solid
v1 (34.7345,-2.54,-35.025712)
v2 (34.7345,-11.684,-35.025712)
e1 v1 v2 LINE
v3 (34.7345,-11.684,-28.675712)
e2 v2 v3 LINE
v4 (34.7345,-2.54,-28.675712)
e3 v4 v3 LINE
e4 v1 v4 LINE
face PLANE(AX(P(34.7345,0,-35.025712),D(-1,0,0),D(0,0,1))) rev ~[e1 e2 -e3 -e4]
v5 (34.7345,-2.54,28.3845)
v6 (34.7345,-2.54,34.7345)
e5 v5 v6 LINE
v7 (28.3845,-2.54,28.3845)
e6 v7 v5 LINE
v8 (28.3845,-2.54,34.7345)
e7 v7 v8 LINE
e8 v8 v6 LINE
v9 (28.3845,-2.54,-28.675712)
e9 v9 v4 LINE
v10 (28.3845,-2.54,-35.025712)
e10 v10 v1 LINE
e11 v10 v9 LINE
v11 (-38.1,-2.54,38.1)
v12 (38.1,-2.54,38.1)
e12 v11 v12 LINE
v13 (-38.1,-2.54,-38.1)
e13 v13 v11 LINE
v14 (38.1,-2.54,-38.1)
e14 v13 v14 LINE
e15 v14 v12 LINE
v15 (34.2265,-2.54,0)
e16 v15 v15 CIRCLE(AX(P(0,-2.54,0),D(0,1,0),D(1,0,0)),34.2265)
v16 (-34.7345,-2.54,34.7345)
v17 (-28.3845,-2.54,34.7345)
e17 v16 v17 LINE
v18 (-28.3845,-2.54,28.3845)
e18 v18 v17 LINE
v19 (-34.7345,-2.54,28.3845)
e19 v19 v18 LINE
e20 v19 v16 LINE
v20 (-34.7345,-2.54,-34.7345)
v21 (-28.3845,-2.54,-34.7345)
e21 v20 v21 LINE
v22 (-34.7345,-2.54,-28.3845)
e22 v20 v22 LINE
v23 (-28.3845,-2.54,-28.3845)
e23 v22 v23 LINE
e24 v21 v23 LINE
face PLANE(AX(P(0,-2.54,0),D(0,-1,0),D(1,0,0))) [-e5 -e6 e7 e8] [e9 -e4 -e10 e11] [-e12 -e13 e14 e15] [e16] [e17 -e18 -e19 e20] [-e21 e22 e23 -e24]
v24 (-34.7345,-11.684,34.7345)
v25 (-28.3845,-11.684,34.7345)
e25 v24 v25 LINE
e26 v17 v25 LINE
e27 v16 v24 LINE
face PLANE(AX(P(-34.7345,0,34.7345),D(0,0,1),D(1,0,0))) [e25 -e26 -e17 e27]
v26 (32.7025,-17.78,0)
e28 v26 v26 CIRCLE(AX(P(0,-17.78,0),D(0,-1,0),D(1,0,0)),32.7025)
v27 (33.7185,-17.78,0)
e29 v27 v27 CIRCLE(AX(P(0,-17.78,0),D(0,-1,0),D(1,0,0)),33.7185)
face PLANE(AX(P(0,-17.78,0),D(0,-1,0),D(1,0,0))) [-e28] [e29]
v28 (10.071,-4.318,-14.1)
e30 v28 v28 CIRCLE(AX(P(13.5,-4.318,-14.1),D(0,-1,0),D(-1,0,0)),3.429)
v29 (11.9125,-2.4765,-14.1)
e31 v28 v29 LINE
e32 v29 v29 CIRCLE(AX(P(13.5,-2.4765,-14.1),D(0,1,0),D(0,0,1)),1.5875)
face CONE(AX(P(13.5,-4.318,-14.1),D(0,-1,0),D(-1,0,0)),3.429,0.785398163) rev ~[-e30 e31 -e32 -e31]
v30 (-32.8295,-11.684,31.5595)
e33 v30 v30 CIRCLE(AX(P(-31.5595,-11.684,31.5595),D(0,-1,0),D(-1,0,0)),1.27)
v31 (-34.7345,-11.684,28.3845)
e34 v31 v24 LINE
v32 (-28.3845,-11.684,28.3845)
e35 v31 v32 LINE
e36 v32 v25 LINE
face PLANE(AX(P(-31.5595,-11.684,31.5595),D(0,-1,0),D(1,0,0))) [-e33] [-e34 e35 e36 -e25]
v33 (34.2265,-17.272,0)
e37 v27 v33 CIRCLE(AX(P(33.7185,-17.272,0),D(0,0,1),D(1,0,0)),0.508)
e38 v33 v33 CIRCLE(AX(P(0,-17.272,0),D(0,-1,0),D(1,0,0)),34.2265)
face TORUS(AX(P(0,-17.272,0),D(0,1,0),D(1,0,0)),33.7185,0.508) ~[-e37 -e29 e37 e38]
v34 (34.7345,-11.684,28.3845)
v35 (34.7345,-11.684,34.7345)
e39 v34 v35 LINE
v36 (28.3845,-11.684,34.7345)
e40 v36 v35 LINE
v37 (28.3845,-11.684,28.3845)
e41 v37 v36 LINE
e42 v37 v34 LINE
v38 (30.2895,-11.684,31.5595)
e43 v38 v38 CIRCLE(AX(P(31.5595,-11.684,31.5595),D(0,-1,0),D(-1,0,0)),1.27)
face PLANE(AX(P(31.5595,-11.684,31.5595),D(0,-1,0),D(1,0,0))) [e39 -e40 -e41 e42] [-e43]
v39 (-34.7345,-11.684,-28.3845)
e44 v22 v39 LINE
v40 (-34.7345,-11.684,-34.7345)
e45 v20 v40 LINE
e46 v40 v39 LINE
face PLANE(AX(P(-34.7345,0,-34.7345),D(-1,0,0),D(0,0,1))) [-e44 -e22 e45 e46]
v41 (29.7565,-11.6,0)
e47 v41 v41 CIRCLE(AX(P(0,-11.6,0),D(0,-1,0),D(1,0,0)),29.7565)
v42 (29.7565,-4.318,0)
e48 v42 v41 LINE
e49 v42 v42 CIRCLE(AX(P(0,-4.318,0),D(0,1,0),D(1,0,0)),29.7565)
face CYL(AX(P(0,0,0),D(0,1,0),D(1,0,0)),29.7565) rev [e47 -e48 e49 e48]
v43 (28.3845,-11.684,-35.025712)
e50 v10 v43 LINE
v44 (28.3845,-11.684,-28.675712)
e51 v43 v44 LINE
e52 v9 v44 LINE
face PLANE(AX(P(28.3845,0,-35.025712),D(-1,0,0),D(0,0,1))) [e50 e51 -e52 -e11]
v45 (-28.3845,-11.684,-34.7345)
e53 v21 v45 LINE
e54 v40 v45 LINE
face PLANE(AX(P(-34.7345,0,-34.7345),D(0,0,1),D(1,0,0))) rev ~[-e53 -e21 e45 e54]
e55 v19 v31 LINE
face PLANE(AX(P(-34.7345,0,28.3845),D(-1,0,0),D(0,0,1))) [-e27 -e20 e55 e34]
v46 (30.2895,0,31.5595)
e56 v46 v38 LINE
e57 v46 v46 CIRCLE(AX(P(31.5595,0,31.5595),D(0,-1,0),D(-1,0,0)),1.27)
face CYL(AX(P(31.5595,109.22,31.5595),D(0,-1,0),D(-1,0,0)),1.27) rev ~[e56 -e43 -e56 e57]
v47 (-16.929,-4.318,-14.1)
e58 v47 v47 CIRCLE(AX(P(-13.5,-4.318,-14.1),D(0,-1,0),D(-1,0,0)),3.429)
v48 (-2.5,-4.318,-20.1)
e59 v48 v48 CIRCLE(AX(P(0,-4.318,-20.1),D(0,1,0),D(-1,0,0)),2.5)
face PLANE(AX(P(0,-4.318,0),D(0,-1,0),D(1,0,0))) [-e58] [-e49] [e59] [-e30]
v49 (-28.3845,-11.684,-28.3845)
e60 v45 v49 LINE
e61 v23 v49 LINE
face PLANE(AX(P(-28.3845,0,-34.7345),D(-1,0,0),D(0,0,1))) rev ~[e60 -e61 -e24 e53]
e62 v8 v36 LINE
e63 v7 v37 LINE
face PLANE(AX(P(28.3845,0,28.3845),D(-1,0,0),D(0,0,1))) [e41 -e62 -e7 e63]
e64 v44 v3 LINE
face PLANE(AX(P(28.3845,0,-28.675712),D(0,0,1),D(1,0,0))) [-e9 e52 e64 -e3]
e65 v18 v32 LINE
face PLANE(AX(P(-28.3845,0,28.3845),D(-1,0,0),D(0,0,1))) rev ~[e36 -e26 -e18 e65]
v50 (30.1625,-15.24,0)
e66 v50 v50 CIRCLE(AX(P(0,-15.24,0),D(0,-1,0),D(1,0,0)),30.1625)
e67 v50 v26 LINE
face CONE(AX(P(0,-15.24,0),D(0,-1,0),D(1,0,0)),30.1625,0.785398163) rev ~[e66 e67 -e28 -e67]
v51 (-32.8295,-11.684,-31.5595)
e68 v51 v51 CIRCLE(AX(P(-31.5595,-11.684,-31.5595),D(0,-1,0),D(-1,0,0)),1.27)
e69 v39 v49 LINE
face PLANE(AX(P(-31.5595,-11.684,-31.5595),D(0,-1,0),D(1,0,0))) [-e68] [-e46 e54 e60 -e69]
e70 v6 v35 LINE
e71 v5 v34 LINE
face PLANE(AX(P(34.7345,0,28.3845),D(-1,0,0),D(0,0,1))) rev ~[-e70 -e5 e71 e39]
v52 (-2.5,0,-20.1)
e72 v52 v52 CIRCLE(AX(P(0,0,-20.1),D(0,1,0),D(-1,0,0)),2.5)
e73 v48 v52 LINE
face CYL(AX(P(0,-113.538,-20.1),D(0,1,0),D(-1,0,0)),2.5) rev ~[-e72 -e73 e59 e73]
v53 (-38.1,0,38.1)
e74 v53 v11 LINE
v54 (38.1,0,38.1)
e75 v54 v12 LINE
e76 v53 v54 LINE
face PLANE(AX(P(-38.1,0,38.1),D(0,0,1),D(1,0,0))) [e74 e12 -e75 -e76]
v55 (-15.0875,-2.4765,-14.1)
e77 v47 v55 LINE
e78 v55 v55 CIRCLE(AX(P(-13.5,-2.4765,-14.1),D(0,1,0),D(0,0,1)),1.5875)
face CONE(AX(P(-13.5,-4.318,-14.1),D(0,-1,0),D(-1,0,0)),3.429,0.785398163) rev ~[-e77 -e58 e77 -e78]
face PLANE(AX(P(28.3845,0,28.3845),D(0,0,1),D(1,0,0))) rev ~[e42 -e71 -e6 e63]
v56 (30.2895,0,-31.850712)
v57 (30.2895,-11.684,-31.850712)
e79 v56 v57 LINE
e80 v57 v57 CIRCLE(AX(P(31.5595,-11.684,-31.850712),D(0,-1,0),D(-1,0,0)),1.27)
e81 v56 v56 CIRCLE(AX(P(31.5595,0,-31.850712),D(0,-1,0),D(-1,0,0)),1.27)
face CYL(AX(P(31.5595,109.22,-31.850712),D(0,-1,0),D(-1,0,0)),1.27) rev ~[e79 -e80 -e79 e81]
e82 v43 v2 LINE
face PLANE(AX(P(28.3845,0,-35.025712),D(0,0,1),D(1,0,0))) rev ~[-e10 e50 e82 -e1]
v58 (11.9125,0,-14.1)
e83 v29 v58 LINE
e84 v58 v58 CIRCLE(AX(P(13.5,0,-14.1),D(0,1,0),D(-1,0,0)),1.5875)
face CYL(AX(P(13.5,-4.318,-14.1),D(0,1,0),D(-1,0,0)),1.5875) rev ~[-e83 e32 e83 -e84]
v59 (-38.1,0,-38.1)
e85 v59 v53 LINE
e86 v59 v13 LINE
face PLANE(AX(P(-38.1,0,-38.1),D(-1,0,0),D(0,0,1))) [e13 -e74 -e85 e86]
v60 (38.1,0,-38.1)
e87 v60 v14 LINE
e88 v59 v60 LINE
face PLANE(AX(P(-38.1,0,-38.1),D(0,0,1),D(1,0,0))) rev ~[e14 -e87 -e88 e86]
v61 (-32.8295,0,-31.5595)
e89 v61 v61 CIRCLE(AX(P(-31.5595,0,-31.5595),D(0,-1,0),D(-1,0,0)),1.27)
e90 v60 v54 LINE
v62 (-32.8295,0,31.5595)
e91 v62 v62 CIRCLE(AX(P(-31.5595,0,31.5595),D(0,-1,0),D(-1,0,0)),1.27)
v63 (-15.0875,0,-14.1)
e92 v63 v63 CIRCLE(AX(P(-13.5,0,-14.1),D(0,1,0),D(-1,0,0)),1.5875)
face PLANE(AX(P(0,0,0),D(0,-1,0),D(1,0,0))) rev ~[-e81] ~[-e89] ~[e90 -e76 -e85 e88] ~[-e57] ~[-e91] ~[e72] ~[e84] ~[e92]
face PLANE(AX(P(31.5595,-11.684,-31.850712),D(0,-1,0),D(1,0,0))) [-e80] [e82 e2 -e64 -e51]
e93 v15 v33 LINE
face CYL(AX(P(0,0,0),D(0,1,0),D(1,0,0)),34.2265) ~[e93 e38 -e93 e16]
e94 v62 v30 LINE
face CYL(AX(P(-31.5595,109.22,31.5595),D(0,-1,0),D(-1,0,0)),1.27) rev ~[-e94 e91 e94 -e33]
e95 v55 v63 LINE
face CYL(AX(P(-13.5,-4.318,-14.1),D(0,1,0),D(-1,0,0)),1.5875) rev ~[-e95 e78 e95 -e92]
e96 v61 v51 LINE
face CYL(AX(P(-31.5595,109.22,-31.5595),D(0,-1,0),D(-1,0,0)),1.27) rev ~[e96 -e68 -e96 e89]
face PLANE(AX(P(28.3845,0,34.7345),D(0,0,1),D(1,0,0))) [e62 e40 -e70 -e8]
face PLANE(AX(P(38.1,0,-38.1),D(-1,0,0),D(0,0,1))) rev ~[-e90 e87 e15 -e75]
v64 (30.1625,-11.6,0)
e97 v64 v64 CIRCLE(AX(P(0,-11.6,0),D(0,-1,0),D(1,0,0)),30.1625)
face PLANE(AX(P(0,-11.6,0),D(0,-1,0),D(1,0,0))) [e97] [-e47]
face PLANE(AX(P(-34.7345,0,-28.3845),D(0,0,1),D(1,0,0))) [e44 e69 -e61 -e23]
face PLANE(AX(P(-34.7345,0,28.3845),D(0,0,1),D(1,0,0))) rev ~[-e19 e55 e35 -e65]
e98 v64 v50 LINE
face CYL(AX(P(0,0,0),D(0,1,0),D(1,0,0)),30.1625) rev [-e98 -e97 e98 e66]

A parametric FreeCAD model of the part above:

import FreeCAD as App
import Part
import Sketcher
from FreeCAD import Vector
Q = App.Units.Quantity


def edges_at(feature, points):
    """Names of the edges that pass closest to the given points."""
    edges = feature.Shape.Edges
    near = lambda p: min(range(len(edges)), key=lambda i: edges[i].distToShape(Part.Vertex(*p))[0])
    return sorted({f"Edge{near(p) + 1}" for p in points})

doc = App.newDocument("Part")
body = doc.addObject("PartDesign::Body", "Body")

# Sketch on XZ plane
sketch1 = body.newObject("Sketcher::SketchObject", "Sketch")
sketch1.AttachmentSupport = (doc.getObject("XZ_Plane"), [""])
sketch1.MapMode = "FlatFace"
sketch1.addGeometry(Part.Circle(Vector(0, 0, 0), Vector(0, 0, 1), 30), False)
sketch1.addConstraint([
    Sketcher.Constraint("Coincident", 0, 3, -1, 1),
    Sketcher.Constraint("Diameter", 0, Q("2.375 in")),
])
pad1 = body.newObject("PartDesign::Pad", "Pad")
pad1.Profile = sketch1
pad1.Length = Q("0.17 in")

# Sketch on XZ plane
sketch2 = body.newObject("Sketcher::SketchObject", "Sketch001")
sketch2.AttachmentSupport = (doc.getObject("XZ_Plane"), [""])
sketch2.MapMode = "FlatFace"
sketch2.addGeometry([
    Part.Circle(Vector(0, 0, 0), Vector(0, 0, 1), 34),
    Part.Circle(Vector(0, 0, 0), Vector(0, 0, 1), 30),
], False)
sketch2.addConstraint([
    Sketcher.Constraint("Coincident", 0, 3, -1, 1),
    Sketcher.Constraint("Coincident", 1, 3, -1, 1),
    Sketcher.Constraint("Diameter", 0, Q("2.695 in")),
    Sketcher.Constraint("Diameter", 1, Q("2.375 in")),
])
pad2 = body.newObject("PartDesign::Pad", "Pad001")
pad2.Profile = sketch2
pad2.Length = Q("0.7 in")

# Sketch on XZ plane
sketch3 = body.newObject("Sketcher::SketchObject", "Sketch002")
sketch3.AttachmentSupport = (doc.getObject("XZ_Plane"), [""])
sketch3.MapMode = "FlatFace"
sketch3.addGeometry([
    Part.LineSegment(Vector(-38, 38, 0), Vector(-38, -38, 0)),  # 0
    Part.LineSegment(Vector(-38, -38, 0), Vector(38, -38, 0)),  # 1
    Part.LineSegment(Vector(38, -38, 0), Vector(38, 38, 0)),  # 2
    Part.LineSegment(Vector(38, 38, 0), Vector(-38, 38, 0)),  # 3
    Part.LineSegment(Vector(-28, -35, 0), Vector(-35, -35, 0)),  # 4
    Part.LineSegment(Vector(-35, -35, 0), Vector(-35, -28, 0)),  # 5
    Part.LineSegment(Vector(-35, -28, 0), Vector(-28, -28, 0)),  # 6
    Part.LineSegment(Vector(-28, -28, 0), Vector(-28, -35, 0)),  # 7
    Part.LineSegment(Vector(35, -35, 0), Vector(28, -35, 0)),  # 8
    Part.LineSegment(Vector(28, -35, 0), Vector(28, -29, 0)),  # 9
    Part.LineSegment(Vector(28, -29, 0), Vector(35, -29, 0)),  # 10
    Part.LineSegment(Vector(35, -29, 0), Vector(35, -35, 0)),  # 11
    Part.LineSegment(Vector(-28, 28, 0), Vector(-35, 28, 0)),  # 12
    Part.LineSegment(Vector(-35, 28, 0), Vector(-35, 35, 0)),  # 13
    Part.LineSegment(Vector(-35, 35, 0), Vector(-28, 35, 0)),  # 14
    Part.LineSegment(Vector(-28, 35, 0), Vector(-28, 28, 0)),  # 15
    Part.Circle(Vector(0, 0, 0), Vector(0, 0, 1), 30),  # 16
    Part.LineSegment(Vector(35, 28, 0), Vector(28, 28, 0)),  # 17
    Part.LineSegment(Vector(28, 28, 0), Vector(28, 35, 0)),  # 18
    Part.LineSegment(Vector(28, 35, 0), Vector(35, 35, 0)),  # 19
    Part.LineSegment(Vector(35, 35, 0), Vector(35, 28, 0)),  # 20
], False)
sketch3.addConstraint([
    Sketcher.Constraint("Coincident", 0, 2, 1, 1),
    Sketcher.Constraint("Coincident", 1, 2, 2, 1),
    Sketcher.Constraint("Coincident", 2, 2, 3, 1),
    Sketcher.Constraint("Coincident", 3, 2, 0, 1),
    Sketcher.Constraint("Coincident", 4, 2, 5, 1),
    Sketcher.Constraint("Coincident", 5, 2, 6, 1),
    Sketcher.Constraint("Coincident", 6, 2, 7, 1),
    Sketcher.Constraint("Coincident", 7, 2, 4, 1),
    Sketcher.Constraint("Coincident", 8, 2, 9, 1),
    Sketcher.Constraint("Coincident", 9, 2, 10, 1),
    Sketcher.Constraint("Coincident", 10, 2, 11, 1),
    Sketcher.Constraint("Coincident", 11, 2, 8, 1),
    Sketcher.Constraint("Coincident", 12, 2, 13, 1),
    Sketcher.Constraint("Coincident", 13, 2, 14, 1),
    Sketcher.Constraint("Coincident", 14, 2, 15, 1),
    Sketcher.Constraint("Coincident", 15, 2, 12, 1),
    Sketcher.Constraint("Coincident", 17, 2, 18, 1),
    Sketcher.Constraint("Coincident", 18, 2, 19, 1),
    Sketcher.Constraint("Coincident", 19, 2, 20, 1),
    Sketcher.Constraint("Coincident", 20, 2, 17, 1),
    Sketcher.Constraint("Vertical", 0),
    Sketcher.Constraint("Horizontal", 1),
    Sketcher.Constraint("Vertical", 2),
    Sketcher.Constraint("Horizontal", 3),
    Sketcher.Constraint("Horizontal", 4),
    Sketcher.Constraint("Vertical", 5),
    Sketcher.Constraint("Horizontal", 6),
    Sketcher.Constraint("Vertical", 7),
    Sketcher.Constraint("Horizontal", 8),
    Sketcher.Constraint("Vertical", 9),
    Sketcher.Constraint("Horizontal", 10),
    Sketcher.Constraint("Vertical", 11),
    Sketcher.Constraint("Horizontal", 12),
    Sketcher.Constraint("Vertical", 13),
    Sketcher.Constraint("Horizontal", 14),
    Sketcher.Constraint("Vertical", 15),
    Sketcher.Constraint("Horizontal", 17),
    Sketcher.Constraint("Vertical", 18),
    Sketcher.Constraint("Horizontal", 19),
    Sketcher.Constraint("Vertical", 20),
    Sketcher.Constraint("Coincident", 16, 3, -1, 1),
    Sketcher.Constraint("Symmetric", 0, 2, 2, 2, -1, 1),
    Sketcher.Constraint("Symmetric", 6, 2, 17, 2, -1, 1),
    Sketcher.Constraint("Symmetric", 4, 2, 19, 2, -1, 1),
    Sketcher.Constraint("Symmetric", 15, 2, 17, 2, -2),
    Sketcher.Constraint("Symmetric", 13, 2, 19, 2, -2),
    Sketcher.Constraint("Vertical", 9, 2, 17, 2),
    Sketcher.Constraint("Vertical", 11, 2, 19, 2),
    Sketcher.Constraint("Equal", 3, 0),
    Sketcher.Constraint("Equal", 19, 5),
    Sketcher.Constraint("Equal", 7, 9),
    Sketcher.Constraint("DistanceX", 1, 1, 1, 2, Q("3 in")),
    Sketcher.Constraint("Diameter", 16, Q("2.375 in")),
    Sketcher.Constraint("DistanceX", 4, 2, 4, 1, Q("0.25 in")),
    Sketcher.Constraint("DistanceX", 7, 2, 8, 2, Q("2.235 in")),
    Sketcher.Constraint("DistanceY", 5, 2, 12, 2, Q("2.235 in")),
    Sketcher.Constraint("DistanceY", 8, 2, -1, 1, Q("35.025712 mm")),
])
pad3 = body.newObject("PartDesign::Pad", "Pad002")
pad3.Profile = sketch3
pad3.Length = Q("0.1 in")

# Sketch on XZ plane
sketch4 = body.newObject("Sketcher::SketchObject", "Sketch003")
sketch4.AttachmentSupport = (doc.getObject("XZ_Plane"), [""])
sketch4.MapMode = "FlatFace"
sketch4.addGeometry([
    Part.LineSegment(Vector(-35, -28, 0), Vector(-35, -35, 0)),  # 0
    Part.LineSegment(Vector(-35, -35, 0), Vector(-28, -35, 0)),  # 1
    Part.LineSegment(Vector(-28, -35, 0), Vector(-28, -28, 0)),  # 2
    Part.LineSegment(Vector(-28, -28, 0), Vector(-35, -28, 0)),  # 3
    Part.LineSegment(Vector(-35, 35, 0), Vector(-35, 28, 0)),  # 4
    Part.LineSegment(Vector(-35, 28, 0), Vector(-28, 28, 0)),  # 5
    Part.LineSegment(Vector(-28, 28, 0), Vector(-28, 35, 0)),  # 6
    Part.LineSegment(Vector(-28, 35, 0), Vector(-35, 35, 0)),  # 7
    Part.LineSegment(Vector(28, 35, 0), Vector(28, 28, 0)),  # 8
    Part.LineSegment(Vector(28, 28, 0), Vector(35, 28, 0)),  # 9
    Part.LineSegment(Vector(35, 28, 0), Vector(35, 35, 0)),  # 10
    Part.LineSegment(Vector(35, 35, 0), Vector(28, 35, 0)),  # 11
    Part.LineSegment(Vector(28, -29, 0), Vector(28, -35, 0)),  # 12
    Part.LineSegment(Vector(28, -35, 0), Vector(35, -35, 0)),  # 13
    Part.LineSegment(Vector(35, -35, 0), Vector(35, -29, 0)),  # 14
    Part.LineSegment(Vector(35, -29, 0), Vector(28, -29, 0)),  # 15
], False)
sketch4.addConstraint([
    Sketcher.Constraint("Coincident", 0, 2, 1, 1),
    Sketcher.Constraint("Coincident", 1, 2, 2, 1),
    Sketcher.Constraint("Coincident", 2, 2, 3, 1),
    Sketcher.Constraint("Coincident", 3, 2, 0, 1),
    Sketcher.Constraint("Coincident", 4, 2, 5, 1),
    Sketcher.Constraint("Coincident", 5, 2, 6, 1),
    Sketcher.Constraint("Coincident", 6, 2, 7, 1),
    Sketcher.Constraint("Coincident", 7, 2, 4, 1),
    Sketcher.Constraint("Coincident", 8, 2, 9, 1),
    Sketcher.Constraint("Coincident", 9, 2, 10, 1),
    Sketcher.Constraint("Coincident", 10, 2, 11, 1),
    Sketcher.Constraint("Coincident", 11, 2, 8, 1),
    Sketcher.Constraint("Coincident", 12, 2, 13, 1),
    Sketcher.Constraint("Coincident", 13, 2, 14, 1),
    Sketcher.Constraint("Coincident", 14, 2, 15, 1),
    Sketcher.Constraint("Coincident", 15, 2, 12, 1),
    Sketcher.Constraint("Vertical", 0),
    Sketcher.Constraint("Horizontal", 1),
    Sketcher.Constraint("Vertical", 2),
    Sketcher.Constraint("Horizontal", 3),
    Sketcher.Constraint("Vertical", 4),
    Sketcher.Constraint("Horizontal", 5),
    Sketcher.Constraint("Vertical", 6),
    Sketcher.Constraint("Horizontal", 7),
    Sketcher.Constraint("Vertical", 8),
    Sketcher.Constraint("Horizontal", 9),
    Sketcher.Constraint("Vertical", 10),
    Sketcher.Constraint("Horizontal", 11),
    Sketcher.Constraint("Vertical", 12),
    Sketcher.Constraint("Horizontal", 13),
    Sketcher.Constraint("Vertical", 14),
    Sketcher.Constraint("Horizontal", 15),
    Sketcher.Constraint("Symmetric", 2, 2, 8, 2, -1, 1),
    Sketcher.Constraint("Symmetric", 0, 2, 10, 2, -1, 1),
    Sketcher.Constraint("Symmetric", 5, 2, 8, 2, -2),
    Sketcher.Constraint("Symmetric", 7, 2, 10, 2, -2),
    Sketcher.Constraint("Vertical", 11, 2, 12, 2),
    Sketcher.Constraint("Vertical", 10, 2, 13, 2),
    Sketcher.Constraint("Equal", 15, 0),
    Sketcher.Constraint("Equal", 10, 12),
    Sketcher.Constraint("DistanceX", 1, 1, 1, 2, Q("0.25 in")),
    Sketcher.Constraint("DistanceY", 3, 2, 4, 2, Q("2.235 in")),
    Sketcher.Constraint("DistanceX", 5, 2, 8, 2, Q("2.235 in")),
    Sketcher.Constraint("DistanceY", 12, 2, -1, 1, Q("35.025712 mm")),
])
pad4 = body.newObject("PartDesign::Pad", "Pad003")
pad4.Profile = sketch4
pad4.Length = Q("0.46 in")

# Sketch on XZ plane
sketch5 = body.newObject("Sketcher::SketchObject", "Sketch004")
sketch5.AttachmentSupport = (doc.getObject("XZ_Plane"), [""])
sketch5.MapMode = "FlatFace"
sketch5.addGeometry([
    Part.Circle(Vector(-31.6, 31.6, 0), Vector(0, 0, 1), 1.3),
    Part.Circle(Vector(31.6, 31.6, 0), Vector(0, 0, 1), 1.3),
    Part.Circle(Vector(-31.6, -31.6, 0), Vector(0, 0, 1), 1.3),
    Part.Circle(Vector(31.6, -31.9, 0), Vector(0, 0, 1), 1.3),
], False)
sketch5.addConstraint([
    Sketcher.Constraint("Equal", 0, 1),
    Sketcher.Constraint("Equal", 1, 2),
    Sketcher.Constraint("Equal", 2, 3),
    Sketcher.Constraint("Symmetric", 1, 3, 2, 3, -1, 1),
    Sketcher.Constraint("Symmetric", 0, 3, 1, 3, -2),
    Sketcher.Constraint("Vertical", 1, 3, 3, 3),
    Sketcher.Constraint("Diameter", 0, Q("0.1 in")),
    Sketcher.Constraint("DistanceX", 0, 3, 1, 3, Q("2.485 in")),
    Sketcher.Constraint("DistanceY", 2, 3, 0, 3, Q("2.485 in")),
    Sketcher.Constraint("DistanceY", 3, 3, -1, 1, Q("31.850712 mm")),
])
doc.recompute()
hole = body.newObject("PartDesign::Hole", "Hole")
hole.Profile = sketch5
hole.ThreadType = "None"
hole.Diameter = Q("0.1 in")
hole.DepthType = "ThroughAll"
hole.Reversed = True

# Sketch on XZ plane
sketch6 = body.newObject("Sketcher::SketchObject", "Sketch005")
sketch6.AttachmentSupport = (doc.getObject("XZ_Plane"), [""])
sketch6.MapMode = "FlatFace"
sketch6.AttachmentOffset = App.Placement(Vector(0, 0, 0.17 * 25.4), App.Rotation())
sketch6.addGeometry([
    Part.Circle(Vector(-13.5, -14.1, 0), Vector(0, 0, 1), 1.6),
    Part.Circle(Vector(13.5, -14.1, 0), Vector(0, 0, 1), 1.6),
], False)
sketch6.addConstraint([
    Sketcher.Constraint("Equal", 0, 1),
    Sketcher.Constraint("Symmetric", 0, 3, 1, 3, -2),
    Sketcher.Constraint("Diameter", 0, Q("0.125 in")),
    Sketcher.Constraint("DistanceX", 0, 3, -1, 1, Q("13.5 mm")),
    Sketcher.Constraint("DistanceY", 0, 3, -1, 1, Q("14.1 mm")),
])
doc.recompute()
hole2 = body.newObject("PartDesign::Hole", "Hole001")
hole2.Profile = sketch6
hole2.ThreadType = "None"
hole2.Diameter = Q("0.125 in")
hole2.DepthType = "ThroughAll"
hole2.HoleCutType = "Countersink"
hole2.HoleCutDiameter = Q("0.27 in")
hole2.HoleCutCountersinkAngle = 90
doc.recompute()

chamfer = body.newObject("PartDesign::Chamfer", "Chamfer")
chamfer.Base = (hole2, edges_at(hole2, [(-30.163, -17.78, 0)]))
chamfer.Size = Q("0.1 in")
doc.recompute()

fillet = body.newObject("PartDesign::Fillet", "Fillet")
fillet.Base = (chamfer, edges_at(chamfer, [(-34.227, -17.78, 0)]))
fillet.Radius = Q("0.02 in")

# Sketch on XZ plane
sketch7 = body.newObject("Sketcher::SketchObject", "Sketch006")
sketch7.AttachmentSupport = (doc.getObject("XZ_Plane"), [""])
sketch7.MapMode = "FlatFace"
sketch7.addGeometry([
    Part.Circle(Vector(0, 0, 0), Vector(0, 0, 1), 30),
    Part.Circle(Vector(0, 0, 0), Vector(0, 0, 1), 30),
], False)
sketch7.addConstraint([
    Sketcher.Constraint("Coincident", 0, 3, -1, 1),
    Sketcher.Constraint("Coincident", 1, 3, -1, 1),
    Sketcher.Constraint("Diameter", 0, Q("2.375 in")),
    Sketcher.Constraint("Diameter", 1, Q("59.513 mm")),
])
pad5 = body.newObject("PartDesign::Pad", "Pad004")
pad5.Profile = sketch7
pad5.Length = 11.6

# Sketch on XZ plane
sketch8 = body.newObject("Sketcher::SketchObject", "Sketch007")
sketch8.AttachmentSupport = (doc.getObject("XZ_Plane"), [""])
sketch8.MapMode = "FlatFace"
sketch8.AttachmentOffset = App.Placement(Vector(0, 0, 0.17 * 25.4), App.Rotation())
sketch8.addGeometry(Part.Circle(Vector(0, -20.1, 0), Vector(0, 0, 1), 2.5), False)
sketch8.addConstraint([
    Sketcher.Constraint("PointOnObject", 0, 3, -2),
    Sketcher.Constraint("Diameter", 0, Q("5 mm")),
    Sketcher.Constraint("DistanceY", 0, 3, -1, 1, Q("20.1 mm")),
])
doc.recompute()
hole3 = body.newObject("PartDesign::Hole", "Hole002")
hole3.Profile = sketch8
hole3.ThreadType = "None"
hole3.Diameter = 5
hole3.DepthType = "ThroughAll"

doc.recompute()
